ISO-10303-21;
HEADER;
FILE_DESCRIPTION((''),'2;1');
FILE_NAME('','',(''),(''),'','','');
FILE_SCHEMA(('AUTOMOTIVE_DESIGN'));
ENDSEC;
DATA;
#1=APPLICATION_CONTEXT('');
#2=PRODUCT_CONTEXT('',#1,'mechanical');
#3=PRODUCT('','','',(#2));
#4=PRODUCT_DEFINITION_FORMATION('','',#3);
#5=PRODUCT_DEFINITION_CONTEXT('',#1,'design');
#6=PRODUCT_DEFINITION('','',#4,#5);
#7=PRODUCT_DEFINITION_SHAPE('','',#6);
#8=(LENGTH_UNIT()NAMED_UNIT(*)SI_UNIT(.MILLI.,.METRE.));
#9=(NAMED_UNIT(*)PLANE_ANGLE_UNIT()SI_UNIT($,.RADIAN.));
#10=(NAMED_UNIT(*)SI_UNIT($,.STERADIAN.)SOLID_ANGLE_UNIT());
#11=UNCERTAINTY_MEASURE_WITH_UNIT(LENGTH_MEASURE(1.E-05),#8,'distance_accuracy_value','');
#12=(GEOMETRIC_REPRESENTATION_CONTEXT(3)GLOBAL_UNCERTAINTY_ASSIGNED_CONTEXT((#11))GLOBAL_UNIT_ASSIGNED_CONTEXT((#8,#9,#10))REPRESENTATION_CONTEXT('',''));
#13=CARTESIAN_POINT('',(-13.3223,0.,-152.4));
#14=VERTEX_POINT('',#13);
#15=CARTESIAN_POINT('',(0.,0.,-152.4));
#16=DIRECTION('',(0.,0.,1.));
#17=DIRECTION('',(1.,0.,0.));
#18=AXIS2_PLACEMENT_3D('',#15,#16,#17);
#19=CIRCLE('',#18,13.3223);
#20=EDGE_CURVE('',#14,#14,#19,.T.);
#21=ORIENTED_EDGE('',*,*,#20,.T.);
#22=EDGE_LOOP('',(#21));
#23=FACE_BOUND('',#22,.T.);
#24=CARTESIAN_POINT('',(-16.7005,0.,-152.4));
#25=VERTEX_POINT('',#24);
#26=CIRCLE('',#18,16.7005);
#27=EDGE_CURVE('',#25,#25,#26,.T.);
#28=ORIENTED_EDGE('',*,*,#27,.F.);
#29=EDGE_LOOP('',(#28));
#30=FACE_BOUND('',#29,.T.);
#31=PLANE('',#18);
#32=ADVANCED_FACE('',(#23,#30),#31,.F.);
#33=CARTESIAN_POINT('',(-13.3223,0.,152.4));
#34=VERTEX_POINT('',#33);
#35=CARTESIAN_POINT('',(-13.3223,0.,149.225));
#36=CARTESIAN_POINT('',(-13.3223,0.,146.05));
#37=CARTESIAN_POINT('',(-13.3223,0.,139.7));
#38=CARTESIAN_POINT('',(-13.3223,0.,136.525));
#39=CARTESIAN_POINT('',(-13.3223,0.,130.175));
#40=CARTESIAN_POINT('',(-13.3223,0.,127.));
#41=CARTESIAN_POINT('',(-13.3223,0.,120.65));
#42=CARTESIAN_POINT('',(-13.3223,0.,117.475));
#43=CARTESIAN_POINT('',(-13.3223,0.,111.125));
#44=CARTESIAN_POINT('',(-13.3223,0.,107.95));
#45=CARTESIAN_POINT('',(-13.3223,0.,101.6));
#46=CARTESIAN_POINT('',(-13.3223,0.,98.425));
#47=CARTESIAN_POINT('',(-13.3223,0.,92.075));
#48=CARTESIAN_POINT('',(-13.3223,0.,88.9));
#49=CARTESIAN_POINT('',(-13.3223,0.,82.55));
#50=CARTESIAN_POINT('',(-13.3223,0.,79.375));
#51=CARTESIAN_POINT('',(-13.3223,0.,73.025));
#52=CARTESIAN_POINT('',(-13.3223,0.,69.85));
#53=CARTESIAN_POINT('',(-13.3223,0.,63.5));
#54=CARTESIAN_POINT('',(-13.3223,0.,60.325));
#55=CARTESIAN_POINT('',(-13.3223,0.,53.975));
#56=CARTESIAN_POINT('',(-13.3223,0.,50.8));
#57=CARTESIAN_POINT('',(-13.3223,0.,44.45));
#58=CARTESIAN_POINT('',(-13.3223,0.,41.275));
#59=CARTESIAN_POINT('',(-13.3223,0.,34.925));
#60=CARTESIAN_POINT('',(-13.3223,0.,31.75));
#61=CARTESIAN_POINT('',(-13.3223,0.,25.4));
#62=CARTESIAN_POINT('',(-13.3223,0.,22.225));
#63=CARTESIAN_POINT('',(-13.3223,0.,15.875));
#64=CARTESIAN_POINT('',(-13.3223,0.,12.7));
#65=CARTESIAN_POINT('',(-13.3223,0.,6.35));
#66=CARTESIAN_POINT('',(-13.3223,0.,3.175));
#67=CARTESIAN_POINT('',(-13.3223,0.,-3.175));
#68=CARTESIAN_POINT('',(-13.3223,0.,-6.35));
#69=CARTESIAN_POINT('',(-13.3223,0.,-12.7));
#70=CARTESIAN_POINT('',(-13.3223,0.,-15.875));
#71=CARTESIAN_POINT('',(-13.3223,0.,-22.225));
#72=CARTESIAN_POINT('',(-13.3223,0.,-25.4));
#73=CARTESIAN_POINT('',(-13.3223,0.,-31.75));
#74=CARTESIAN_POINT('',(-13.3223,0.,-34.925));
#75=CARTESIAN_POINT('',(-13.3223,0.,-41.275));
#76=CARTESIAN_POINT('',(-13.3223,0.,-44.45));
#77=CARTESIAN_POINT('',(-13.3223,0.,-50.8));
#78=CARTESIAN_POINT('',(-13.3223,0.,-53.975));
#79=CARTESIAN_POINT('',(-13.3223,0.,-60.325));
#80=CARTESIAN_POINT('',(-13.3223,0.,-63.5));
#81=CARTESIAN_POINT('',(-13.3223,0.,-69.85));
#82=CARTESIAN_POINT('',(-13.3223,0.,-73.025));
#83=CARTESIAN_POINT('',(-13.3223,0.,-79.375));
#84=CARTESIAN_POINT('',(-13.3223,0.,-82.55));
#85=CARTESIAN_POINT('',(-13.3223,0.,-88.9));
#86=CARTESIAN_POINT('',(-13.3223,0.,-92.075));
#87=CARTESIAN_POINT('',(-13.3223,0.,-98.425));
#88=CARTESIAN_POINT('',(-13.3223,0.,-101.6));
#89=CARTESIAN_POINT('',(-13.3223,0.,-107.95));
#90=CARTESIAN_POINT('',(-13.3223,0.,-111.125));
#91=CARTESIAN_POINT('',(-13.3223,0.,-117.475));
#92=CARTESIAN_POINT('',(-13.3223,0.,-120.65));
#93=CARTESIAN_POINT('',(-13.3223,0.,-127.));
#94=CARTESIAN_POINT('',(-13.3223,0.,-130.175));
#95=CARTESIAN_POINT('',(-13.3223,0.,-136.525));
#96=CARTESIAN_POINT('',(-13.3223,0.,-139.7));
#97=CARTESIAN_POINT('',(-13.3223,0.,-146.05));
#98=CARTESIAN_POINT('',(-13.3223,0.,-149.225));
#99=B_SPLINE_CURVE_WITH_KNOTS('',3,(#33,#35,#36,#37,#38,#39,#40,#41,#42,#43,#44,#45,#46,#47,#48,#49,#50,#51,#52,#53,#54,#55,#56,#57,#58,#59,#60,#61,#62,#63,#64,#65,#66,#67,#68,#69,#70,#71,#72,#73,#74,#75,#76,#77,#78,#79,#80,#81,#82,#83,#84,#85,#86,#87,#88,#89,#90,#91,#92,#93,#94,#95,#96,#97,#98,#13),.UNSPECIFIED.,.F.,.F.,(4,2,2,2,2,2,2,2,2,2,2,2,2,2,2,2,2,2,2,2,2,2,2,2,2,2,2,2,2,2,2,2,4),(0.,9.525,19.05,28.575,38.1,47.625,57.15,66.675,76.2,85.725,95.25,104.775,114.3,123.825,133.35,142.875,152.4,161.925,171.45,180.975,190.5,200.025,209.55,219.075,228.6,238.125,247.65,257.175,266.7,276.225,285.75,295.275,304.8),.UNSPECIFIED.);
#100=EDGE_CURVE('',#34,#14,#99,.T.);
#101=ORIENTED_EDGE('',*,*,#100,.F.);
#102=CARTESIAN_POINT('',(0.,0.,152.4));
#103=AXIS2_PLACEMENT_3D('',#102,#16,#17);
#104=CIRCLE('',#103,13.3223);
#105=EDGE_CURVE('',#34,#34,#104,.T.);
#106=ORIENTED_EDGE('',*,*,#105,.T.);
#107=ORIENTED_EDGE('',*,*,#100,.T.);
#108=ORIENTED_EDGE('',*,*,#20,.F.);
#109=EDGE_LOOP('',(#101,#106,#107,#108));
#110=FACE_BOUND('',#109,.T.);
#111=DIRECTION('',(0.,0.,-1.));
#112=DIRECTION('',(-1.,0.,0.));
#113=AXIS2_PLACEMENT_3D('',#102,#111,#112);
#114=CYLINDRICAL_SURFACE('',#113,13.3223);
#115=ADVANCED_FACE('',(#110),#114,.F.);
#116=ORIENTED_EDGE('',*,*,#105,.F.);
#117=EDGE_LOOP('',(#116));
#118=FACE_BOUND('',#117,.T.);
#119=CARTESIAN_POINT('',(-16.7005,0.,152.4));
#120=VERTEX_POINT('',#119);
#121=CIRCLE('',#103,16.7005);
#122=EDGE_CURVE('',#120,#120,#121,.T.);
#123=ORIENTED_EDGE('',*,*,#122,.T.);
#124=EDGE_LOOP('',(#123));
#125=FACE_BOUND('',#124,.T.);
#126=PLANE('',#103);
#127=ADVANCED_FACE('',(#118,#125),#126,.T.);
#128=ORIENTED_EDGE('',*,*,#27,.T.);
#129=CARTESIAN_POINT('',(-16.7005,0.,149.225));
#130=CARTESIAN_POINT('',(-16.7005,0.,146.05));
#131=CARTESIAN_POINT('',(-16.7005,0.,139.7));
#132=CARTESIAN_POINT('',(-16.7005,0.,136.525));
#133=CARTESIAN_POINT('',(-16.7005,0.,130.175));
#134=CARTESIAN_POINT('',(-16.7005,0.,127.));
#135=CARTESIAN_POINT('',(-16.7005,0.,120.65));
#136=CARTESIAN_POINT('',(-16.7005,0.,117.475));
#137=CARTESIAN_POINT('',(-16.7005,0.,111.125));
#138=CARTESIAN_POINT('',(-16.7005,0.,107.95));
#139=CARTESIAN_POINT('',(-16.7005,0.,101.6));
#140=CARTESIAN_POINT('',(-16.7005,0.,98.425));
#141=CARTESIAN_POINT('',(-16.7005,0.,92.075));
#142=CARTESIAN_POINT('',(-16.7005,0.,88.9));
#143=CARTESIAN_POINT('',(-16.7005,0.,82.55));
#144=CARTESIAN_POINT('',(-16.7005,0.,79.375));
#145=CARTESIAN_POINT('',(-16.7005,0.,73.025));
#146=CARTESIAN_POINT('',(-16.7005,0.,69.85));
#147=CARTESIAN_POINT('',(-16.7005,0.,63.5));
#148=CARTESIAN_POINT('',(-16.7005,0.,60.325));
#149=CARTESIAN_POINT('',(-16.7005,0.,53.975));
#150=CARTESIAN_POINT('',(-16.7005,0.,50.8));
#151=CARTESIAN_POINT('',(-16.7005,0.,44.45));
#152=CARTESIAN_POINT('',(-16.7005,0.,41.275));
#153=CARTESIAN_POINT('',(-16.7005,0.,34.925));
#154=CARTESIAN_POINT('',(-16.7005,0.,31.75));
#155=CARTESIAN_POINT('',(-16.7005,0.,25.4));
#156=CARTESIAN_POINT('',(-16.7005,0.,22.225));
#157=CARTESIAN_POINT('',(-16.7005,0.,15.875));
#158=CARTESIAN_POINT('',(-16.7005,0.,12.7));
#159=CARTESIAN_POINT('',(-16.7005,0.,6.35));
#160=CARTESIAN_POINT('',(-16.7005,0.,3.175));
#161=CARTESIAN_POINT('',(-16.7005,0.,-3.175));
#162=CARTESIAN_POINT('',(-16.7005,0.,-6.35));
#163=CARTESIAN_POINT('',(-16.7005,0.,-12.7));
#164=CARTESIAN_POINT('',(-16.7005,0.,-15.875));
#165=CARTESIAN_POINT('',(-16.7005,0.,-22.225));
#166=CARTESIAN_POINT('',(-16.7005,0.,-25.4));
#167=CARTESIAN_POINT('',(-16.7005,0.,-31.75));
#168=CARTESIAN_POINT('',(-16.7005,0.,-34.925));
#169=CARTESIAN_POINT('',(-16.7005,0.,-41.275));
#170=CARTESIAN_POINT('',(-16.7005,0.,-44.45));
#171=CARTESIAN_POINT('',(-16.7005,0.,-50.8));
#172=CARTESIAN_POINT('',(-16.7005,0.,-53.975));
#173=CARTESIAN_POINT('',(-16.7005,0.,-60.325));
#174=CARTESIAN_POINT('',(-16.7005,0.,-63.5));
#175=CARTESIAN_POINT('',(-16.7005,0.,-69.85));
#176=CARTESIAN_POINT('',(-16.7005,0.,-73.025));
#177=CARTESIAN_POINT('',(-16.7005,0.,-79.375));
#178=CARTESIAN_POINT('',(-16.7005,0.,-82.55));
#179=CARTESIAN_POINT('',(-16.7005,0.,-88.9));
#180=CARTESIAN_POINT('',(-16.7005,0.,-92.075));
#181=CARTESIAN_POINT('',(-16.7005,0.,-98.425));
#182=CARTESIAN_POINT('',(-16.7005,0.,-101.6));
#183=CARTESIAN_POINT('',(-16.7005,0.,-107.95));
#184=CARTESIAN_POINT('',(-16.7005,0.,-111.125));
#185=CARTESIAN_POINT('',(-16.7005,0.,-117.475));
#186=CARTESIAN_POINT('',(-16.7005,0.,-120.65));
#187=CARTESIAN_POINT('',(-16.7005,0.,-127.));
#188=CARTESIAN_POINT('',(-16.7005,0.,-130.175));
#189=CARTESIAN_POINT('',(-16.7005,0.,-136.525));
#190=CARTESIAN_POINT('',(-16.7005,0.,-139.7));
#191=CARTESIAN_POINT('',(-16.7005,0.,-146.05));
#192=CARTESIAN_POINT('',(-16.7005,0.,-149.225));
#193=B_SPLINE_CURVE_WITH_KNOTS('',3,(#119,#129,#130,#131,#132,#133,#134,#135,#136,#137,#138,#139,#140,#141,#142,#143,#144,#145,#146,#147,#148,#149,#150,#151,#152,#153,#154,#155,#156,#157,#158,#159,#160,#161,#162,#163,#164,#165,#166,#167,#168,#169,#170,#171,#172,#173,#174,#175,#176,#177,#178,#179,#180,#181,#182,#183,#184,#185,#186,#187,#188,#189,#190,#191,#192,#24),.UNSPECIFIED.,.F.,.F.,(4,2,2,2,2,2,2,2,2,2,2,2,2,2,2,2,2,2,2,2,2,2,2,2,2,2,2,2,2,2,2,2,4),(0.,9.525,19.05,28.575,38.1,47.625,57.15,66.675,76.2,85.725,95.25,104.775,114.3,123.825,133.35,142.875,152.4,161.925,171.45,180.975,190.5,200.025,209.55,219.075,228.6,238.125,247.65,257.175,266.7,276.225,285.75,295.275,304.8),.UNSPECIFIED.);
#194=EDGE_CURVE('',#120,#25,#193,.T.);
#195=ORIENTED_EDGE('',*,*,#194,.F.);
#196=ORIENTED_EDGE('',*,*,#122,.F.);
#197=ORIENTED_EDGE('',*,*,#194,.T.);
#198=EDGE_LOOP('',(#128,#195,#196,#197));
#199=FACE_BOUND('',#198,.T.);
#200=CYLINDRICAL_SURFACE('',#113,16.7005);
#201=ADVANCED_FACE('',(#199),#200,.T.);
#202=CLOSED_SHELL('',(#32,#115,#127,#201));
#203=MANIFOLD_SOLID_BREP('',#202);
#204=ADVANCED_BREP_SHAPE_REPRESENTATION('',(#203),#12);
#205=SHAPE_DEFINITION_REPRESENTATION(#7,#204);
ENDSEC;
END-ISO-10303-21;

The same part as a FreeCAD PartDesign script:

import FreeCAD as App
import Part
import Sketcher
from FreeCAD import Vector
Q = App.Units.Quantity

doc = App.newDocument("Part")
body = doc.addObject("PartDesign::Body", "Body")

# Sketch on XY plane
sketch1 = body.newObject("Sketcher::SketchObject", "Sketch")
sketch1.AttachmentSupport = (doc.getObject("XY_Plane"), [""])
sketch1.MapMode = "FlatFace"
sketch1.addGeometry([
    Part.Circle(Vector(0, 0, 0), Vector(0, 0, 1), 17),
    Part.Circle(Vector(0, 0, 0), Vector(0, 0, 1), 13),
], False)
sketch1.addConstraint([
    Sketcher.Constraint("Coincident", 0, 3, -1, 1),
    Sketcher.Constraint("Coincident", 1, 3, -1, 1),
    Sketcher.Constraint("Diameter", 0, Q("1.315 in")),
    Sketcher.Constraint("Diameter", 1, Q("1.049 in")),
])
pad1 = body.newObject("PartDesign::Pad", "Pad")
pad1.Profile = sketch1
pad1.Length = Q("12 in")
pad1.Midplane = True

doc.recompute()
